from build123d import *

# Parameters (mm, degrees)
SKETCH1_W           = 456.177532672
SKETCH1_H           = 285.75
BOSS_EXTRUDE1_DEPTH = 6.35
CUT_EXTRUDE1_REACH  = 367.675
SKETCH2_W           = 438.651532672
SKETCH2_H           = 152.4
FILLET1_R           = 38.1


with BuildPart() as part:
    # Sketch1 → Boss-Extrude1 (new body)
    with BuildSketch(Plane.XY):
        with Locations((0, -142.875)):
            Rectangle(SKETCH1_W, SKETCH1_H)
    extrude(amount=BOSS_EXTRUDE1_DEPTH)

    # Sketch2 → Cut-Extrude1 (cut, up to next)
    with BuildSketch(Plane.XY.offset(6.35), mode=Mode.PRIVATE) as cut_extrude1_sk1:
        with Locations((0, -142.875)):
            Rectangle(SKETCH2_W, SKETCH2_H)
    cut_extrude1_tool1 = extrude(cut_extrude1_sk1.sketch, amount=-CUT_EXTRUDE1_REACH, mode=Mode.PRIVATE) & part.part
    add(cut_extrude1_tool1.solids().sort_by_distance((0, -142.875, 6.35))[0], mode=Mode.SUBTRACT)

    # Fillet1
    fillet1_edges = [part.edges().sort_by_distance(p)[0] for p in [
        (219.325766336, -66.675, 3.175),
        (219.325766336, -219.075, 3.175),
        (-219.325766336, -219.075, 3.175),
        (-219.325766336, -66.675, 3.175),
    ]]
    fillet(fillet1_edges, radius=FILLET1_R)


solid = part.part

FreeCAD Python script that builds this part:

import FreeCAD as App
import Part
import Sketcher
from FreeCAD import Vector
Q = App.Units.Quantity


def edges_at(feature, points):
    """Names of the edges that pass closest to the given points."""
    edges = feature.Shape.Edges
    near = lambda p: min(range(len(edges)), key=lambda i: edges[i].distToShape(Part.Vertex(*p))[0])
    return sorted({f"Edge{near(p) + 1}" for p in points})

doc = App.newDocument("Part")
body = doc.addObject("PartDesign::Body", "Body")

# Sketch on XY plane
sketch1 = body.newObject("Sketcher::SketchObject", "Sketch")
sketch1.AttachmentSupport = (doc.getObject("XY_Plane"), [""])
sketch1.MapMode = "FlatFace"
sketch1.addGeometry(Part.LineSegment(Vector(-228, 0, 0), Vector(-228, -286, 0)), False)
sketch1.addGeometry(Part.LineSegment(Vector(-228, -286, 0), Vector(228, -286, 0)), False)
sketch1.addGeometry(Part.LineSegment(Vector(228, -286, 0), Vector(228, 0, 0)), False)
sketch1.addGeometry(Part.LineSegment(Vector(228, 0, 0), Vector(-228, 0, 0)), False)
sketch1.addConstraint(Sketcher.Constraint("Coincident", 0, 2, 1, 1))
sketch1.addConstraint(Sketcher.Constraint("Coincident", 1, 2, 2, 1))
sketch1.addConstraint(Sketcher.Constraint("Coincident", 2, 2, 3, 1))
sketch1.addConstraint(Sketcher.Constraint("Coincident", 3, 2, 0, 1))
sketch1.addConstraint(Sketcher.Constraint("Vertical", 0))
sketch1.addConstraint(Sketcher.Constraint("Horizontal", 1))
sketch1.addConstraint(Sketcher.Constraint("Vertical", 2))
sketch1.addConstraint(Sketcher.Constraint("Horizontal", 3))
sketch1.addConstraint(Sketcher.Constraint("Symmetric", 2, 2, 3, 2, -1, 1))
sketch1.addConstraint(Sketcher.Constraint("DistanceY", 0, 2, 0, 1, Q("11.25 in")))
sketch1.addConstraint(Sketcher.Constraint("DistanceX", 1, 1, 1, 2, 456.177533))
pad1 = body.newObject("PartDesign::Pad", "Pad")
pad1.Profile = sketch1
pad1.Length = Q("0.25 in")

# Sketch on XY plane
sketch2 = body.newObject("Sketcher::SketchObject", "Sketch001")
sketch2.AttachmentSupport = (doc.getObject("XY_Plane"), [""])
sketch2.MapMode = "FlatFace"
sketch2.AttachmentOffset = App.Placement(Vector(0, 0, 0.25 * 25.4), App.Rotation())
sketch2.addGeometry(Part.LineSegment(Vector(-219, -67, 0), Vector(-219, -219, 0)), False)
sketch2.addGeometry(Part.LineSegment(Vector(-219, -219, 0), Vector(219, -219, 0)), False)
sketch2.addGeometry(Part.LineSegment(Vector(219, -219, 0), Vector(219, -67, 0)), False)
sketch2.addGeometry(Part.LineSegment(Vector(219, -67, 0), Vector(-219, -67, 0)), False)
sketch2.addConstraint(Sketcher.Constraint("Coincident", 0, 2, 1, 1))
sketch2.addConstraint(Sketcher.Constraint("Coincident", 1, 2, 2, 1))
sketch2.addConstraint(Sketcher.Constraint("Coincident", 2, 2, 3, 1))
sketch2.addConstraint(Sketcher.Constraint("Coincident", 3, 2, 0, 1))
sketch2.addConstraint(Sketcher.Constraint("Vertical", 0))
sketch2.addConstraint(Sketcher.Constraint("Horizontal", 1))
sketch2.addConstraint(Sketcher.Constraint("Vertical", 2))
sketch2.addConstraint(Sketcher.Constraint("Horizontal", 3))
sketch2.addConstraint(Sketcher.Constraint("DistanceY", 0, 2, 0, 1, Q("6 in")))
sketch2.addConstraint(Sketcher.Constraint("DistanceY", 0, 2, -1, 1, Q("8.625 in")))
sketch2.addConstraint(Sketcher.Constraint("DistanceX", 1, 1, 1, 2, 438.651533))
sketch2.addConstraint(Sketcher.Constraint("DistanceX", 0, 2, -1, 1, 219.325766))
pocket1 = body.newObject("PartDesign::Pocket", "Pocket")
pocket1.Profile = sketch2
pocket1.Type = "UpToFirst"
doc.recompute()

fillet = body.newObject("PartDesign::Fillet", "Fillet")
fillet.Base = (pocket1, edges_at(pocket1, [
    (219.326, -66.675, 3.175),
    (219.326, -219.075, 3.175),
    (-219.326, -219.075, 3.175),
    (-219.326, -66.675, 3.175),
]))
fillet.Radius = Q("1.5 in")

doc.recompute()
